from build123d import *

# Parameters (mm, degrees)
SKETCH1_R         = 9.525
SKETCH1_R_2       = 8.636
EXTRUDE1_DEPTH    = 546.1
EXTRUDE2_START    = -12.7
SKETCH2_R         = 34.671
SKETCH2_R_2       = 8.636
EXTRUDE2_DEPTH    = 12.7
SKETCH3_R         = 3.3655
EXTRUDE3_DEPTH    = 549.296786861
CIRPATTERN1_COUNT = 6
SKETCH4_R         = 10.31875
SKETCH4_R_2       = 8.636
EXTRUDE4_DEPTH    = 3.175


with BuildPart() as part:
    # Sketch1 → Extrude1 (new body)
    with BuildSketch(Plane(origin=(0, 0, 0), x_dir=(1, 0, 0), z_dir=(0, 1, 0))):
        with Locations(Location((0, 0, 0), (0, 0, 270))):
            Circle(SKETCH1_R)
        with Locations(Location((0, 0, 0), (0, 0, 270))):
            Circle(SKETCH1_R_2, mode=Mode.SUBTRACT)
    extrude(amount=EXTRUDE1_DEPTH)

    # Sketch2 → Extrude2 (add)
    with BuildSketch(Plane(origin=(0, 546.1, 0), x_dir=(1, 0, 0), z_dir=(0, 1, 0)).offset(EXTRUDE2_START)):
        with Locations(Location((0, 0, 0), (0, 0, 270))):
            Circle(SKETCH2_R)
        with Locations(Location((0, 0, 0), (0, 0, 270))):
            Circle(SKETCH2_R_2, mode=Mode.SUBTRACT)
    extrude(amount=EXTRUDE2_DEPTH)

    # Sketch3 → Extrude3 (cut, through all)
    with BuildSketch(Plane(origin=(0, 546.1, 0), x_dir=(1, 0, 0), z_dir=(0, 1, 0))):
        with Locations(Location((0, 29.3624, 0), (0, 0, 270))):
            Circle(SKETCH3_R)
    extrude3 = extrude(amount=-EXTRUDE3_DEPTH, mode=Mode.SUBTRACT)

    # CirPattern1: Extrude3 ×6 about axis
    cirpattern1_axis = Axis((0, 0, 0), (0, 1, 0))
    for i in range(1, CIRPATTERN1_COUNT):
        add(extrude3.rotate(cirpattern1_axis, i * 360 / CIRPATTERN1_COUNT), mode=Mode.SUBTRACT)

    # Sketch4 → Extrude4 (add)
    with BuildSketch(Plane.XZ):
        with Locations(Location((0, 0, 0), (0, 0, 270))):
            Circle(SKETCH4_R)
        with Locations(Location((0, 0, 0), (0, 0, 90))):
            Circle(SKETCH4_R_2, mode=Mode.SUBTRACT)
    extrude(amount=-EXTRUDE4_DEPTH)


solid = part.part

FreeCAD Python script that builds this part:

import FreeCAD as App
import Part
import Sketcher

V = App.Vector
Q = App.Units.Quantity

doc = App.newDocument("Part")
body = doc.addObject("PartDesign::Body", "Body")

sketch1 = doc.addObject("Sketcher::SketchObject", "Sketch")
body.addObject(sketch1)
sketch1.AttachmentSupport = (doc.XZ_Plane, [""])
sketch1.MapMode = "FlatFace"
sketch1.addGeometry(Part.Circle(V(0, 0, 0), V(0, 0, 1), 10), False)
sketch1.addGeometry(Part.Circle(V(0, 0, 0), V(0, 0, 1), 9), False)
sketch1.addConstraint(Sketcher.Constraint("Coincident", 0, 3, -1, 1))
sketch1.addConstraint(Sketcher.Constraint("Coincident", 1, 3, -1, 1))
sketch1.addConstraint(Sketcher.Constraint("Diameter", 0, Q("0.75 in")))
sketch1.addConstraint(Sketcher.Constraint("Diameter", 1, Q("0.68 in")))
pad1 = doc.addObject("PartDesign::Pad", "Pad")
body.addObject(pad1)
pad1.Profile = sketch1
pad1.Length = Q("21.5 in")
pad1.Reversed = True

sketch2 = doc.addObject("Sketcher::SketchObject", "Sketch001")
body.addObject(sketch2)
sketch2.AttachmentSupport = (doc.XZ_Plane, [""])
sketch2.MapMode = "FlatFace"
sketch2.AttachmentOffset = App.Placement(V(0, 0, -21 * 25.4), App.Rotation())
sketch2.addGeometry(Part.Circle(V(0, 0, 0), V(0, 0, 1), 35), False)
sketch2.addGeometry(Part.Circle(V(0, 0, 0), V(0, 0, 1), 9), False)
sketch2.addConstraint(Sketcher.Constraint("Coincident", 0, 3, -1, 1))
sketch2.addConstraint(Sketcher.Constraint("Coincident", 1, 3, -1, 1))
sketch2.addConstraint(Sketcher.Constraint("Diameter", 0, Q("2.73 in")))
sketch2.addConstraint(Sketcher.Constraint("Diameter", 1, Q("0.68 in")))
pad2 = doc.addObject("PartDesign::Pad", "Pad001")
body.addObject(pad2)
pad2.Profile = sketch2
pad2.Length = Q("0.5 in")
pad2.Reversed = True

sketch3 = doc.addObject("Sketcher::SketchObject", "Sketch002")
body.addObject(sketch3)
sketch3.AttachmentSupport = (doc.XZ_Plane, [""])
sketch3.MapMode = "FlatFace"
sketch3.AttachmentOffset = App.Placement(V(0, 0, -21.5 * 25.4), App.Rotation())
sketch3.addGeometry(Part.Circle(V(0, -29.4, 0), V(0, 0, 1), 3.4), False)
sketch3.addConstraint(Sketcher.Constraint("PointOnObject", 0, 3, -2))
sketch3.addConstraint(Sketcher.Constraint("Diameter", 0, Q("0.265 in")))
sketch3.addConstraint(Sketcher.Constraint("DistanceY", 0, 3, -1, 1, Q("1.156 in")))
pocket1 = doc.addObject("PartDesign::Pocket", "Pocket")
body.addObject(pocket1)
pocket1.Profile = sketch3
pocket1.Type = "ThroughAll"
pocket1.Reversed = True
doc.recompute()

polarpattern = doc.addObject("PartDesign::PolarPattern", "PolarPattern")
body.addObject(polarpattern)
polarpattern.Originals = [pocket1]
polarpattern.Axis = (doc.Y_Axis, [""])
polarpattern.Angle = 360
polarpattern.Occurrences = 6
body.Tip = polarpattern

sketch4 = doc.addObject("Sketcher::SketchObject", "Sketch003")
body.addObject(sketch4)
sketch4.AttachmentSupport = (doc.XZ_Plane, [""])
sketch4.MapMode = "FlatFace"
sketch4.addGeometry(Part.Circle(V(0, 0, 0), V(0, 0, 1), 10), False)
sketch4.addGeometry(Part.Circle(V(0, 0, 0), V(0, 0, 1), 9), False)
sketch4.addConstraint(Sketcher.Constraint("Coincident", 0, 3, -1, 1))
sketch4.addConstraint(Sketcher.Constraint("Coincident", 1, 3, -1, 1))
sketch4.addConstraint(Sketcher.Constraint("Diameter", 1, Q("0.68 in")))
sketch4.addConstraint(Sketcher.Constraint("Diameter", 0, Q("0.8125 in")))
pad3 = doc.addObject("PartDesign::Pad", "Pad002")
body.addObject(pad3)
pad3.Profile = sketch4
pad3.Length = Q("0.125 in")
pad3.Reversed = True

doc.recompute()
